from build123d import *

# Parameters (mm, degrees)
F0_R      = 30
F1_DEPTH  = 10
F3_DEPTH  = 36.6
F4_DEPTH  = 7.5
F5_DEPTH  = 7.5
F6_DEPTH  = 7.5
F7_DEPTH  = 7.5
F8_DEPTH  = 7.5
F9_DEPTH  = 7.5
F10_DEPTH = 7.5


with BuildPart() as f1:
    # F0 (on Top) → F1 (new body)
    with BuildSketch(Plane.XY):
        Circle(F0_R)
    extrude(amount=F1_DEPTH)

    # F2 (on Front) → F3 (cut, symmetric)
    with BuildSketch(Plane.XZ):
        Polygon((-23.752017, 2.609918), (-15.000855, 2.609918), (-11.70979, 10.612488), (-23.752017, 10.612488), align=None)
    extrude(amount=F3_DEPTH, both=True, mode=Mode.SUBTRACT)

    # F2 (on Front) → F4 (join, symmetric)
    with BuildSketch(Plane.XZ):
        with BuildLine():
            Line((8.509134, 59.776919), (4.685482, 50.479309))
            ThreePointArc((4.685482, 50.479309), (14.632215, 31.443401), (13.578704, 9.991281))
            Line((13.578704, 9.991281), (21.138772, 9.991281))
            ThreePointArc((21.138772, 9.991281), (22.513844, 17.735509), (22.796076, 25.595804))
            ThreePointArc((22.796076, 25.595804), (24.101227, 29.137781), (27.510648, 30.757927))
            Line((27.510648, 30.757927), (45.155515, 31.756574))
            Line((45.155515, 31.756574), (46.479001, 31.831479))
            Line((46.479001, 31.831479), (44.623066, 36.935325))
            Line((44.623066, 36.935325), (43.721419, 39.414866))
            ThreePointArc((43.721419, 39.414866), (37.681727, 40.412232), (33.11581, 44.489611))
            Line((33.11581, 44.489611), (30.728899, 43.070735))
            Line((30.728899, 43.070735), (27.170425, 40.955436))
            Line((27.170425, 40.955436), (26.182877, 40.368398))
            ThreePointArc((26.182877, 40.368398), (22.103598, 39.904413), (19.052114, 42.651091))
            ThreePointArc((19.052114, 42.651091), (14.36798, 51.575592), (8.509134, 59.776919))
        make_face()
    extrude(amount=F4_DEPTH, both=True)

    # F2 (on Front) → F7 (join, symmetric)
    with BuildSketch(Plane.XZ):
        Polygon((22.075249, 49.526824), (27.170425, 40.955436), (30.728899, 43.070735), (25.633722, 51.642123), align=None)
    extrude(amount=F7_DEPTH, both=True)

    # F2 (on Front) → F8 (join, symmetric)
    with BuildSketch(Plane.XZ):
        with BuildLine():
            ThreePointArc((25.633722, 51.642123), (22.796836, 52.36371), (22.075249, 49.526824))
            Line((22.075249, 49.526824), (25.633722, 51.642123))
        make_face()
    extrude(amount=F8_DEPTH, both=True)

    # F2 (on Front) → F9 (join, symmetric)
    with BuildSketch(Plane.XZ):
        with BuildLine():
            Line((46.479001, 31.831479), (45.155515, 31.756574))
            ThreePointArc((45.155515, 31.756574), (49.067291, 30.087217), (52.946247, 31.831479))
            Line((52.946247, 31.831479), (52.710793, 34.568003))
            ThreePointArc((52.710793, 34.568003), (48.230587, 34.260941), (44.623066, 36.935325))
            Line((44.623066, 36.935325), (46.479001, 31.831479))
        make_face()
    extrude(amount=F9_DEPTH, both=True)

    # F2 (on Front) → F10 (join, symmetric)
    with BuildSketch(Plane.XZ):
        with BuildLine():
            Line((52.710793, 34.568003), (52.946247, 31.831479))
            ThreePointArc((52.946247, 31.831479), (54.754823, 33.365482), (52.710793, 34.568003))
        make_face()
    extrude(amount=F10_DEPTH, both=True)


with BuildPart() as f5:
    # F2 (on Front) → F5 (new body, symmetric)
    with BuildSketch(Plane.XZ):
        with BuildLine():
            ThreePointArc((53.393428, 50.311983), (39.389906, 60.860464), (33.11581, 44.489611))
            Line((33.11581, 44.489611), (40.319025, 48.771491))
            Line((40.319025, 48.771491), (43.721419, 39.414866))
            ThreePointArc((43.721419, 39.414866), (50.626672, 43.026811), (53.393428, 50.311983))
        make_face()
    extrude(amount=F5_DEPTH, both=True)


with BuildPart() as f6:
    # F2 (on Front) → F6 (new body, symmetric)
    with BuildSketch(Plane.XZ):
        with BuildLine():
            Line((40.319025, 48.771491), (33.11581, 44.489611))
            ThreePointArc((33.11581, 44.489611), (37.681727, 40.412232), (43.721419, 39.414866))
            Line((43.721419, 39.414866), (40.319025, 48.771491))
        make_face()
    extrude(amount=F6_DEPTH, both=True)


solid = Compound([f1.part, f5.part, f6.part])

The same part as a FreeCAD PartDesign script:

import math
import FreeCAD as App
import Part
import Sketcher

V = App.Vector
Q = App.Units.Quantity


def add_polygon(sketch, points):
    """Adds a closed chain of lines whose ends are joined by coincident constraints."""
    first, n = sketch.GeometryCount, len(points)
    for a, b in zip(points, points[1:] + points[:1]):
        sketch.addGeometry(Part.LineSegment(App.Vector(*a, 0), App.Vector(*b, 0)), False)
    for i in range(n):
        sketch.addConstraint(Sketcher.Constraint("Coincident", first + i, 2, first + (i + 1) % n, 1))

doc = App.newDocument("Part")
params = doc.addObject("Spreadsheet::Sheet", "Params")
for row, (alias, value) in enumerate([
    ("sketch1_diameter", "60 mm"),
    ("pad1_length", "10 mm"),
    ("pocket1_length", "73.2 mm"),
    ("sketch3_radius", "5 mm"),
    ("pad2_length", "15 mm"),
    ("pad3_length", "15 mm"),
    ("pad4_length", "15 mm"),
    ("pad5_length", "15 mm"),
    ("pad6_length", "15 mm"),
    ("pad7_length", "15 mm"),
    ("pad8_length", "15 mm"),
], start=1):
    params.set(f"A{row}", alias)
    params.set(f"B{row}", "=" + value)
    params.setAlias(f"B{row}", alias)

body = doc.addObject("PartDesign::Body", "Body")

sketch1 = body.newObject("Sketcher::SketchObject", "Sketch")
sketch1.AttachmentSupport = (doc.getObject("XY_Plane"), [""])
sketch1.MapMode = "FlatFace"
sketch1.addGeometry(Part.Circle(V(0, 0, 0), V(0, 0, 1), 30), False)
sketch1.addConstraint(Sketcher.Constraint("Coincident", 0, 3, -1, 1))
sketch1.addConstraint(Sketcher.Constraint("Diameter", 0, Q("60 mm")))
sketch1.setExpression("Constraints[1]", "Params.sketch1_diameter")
pad1 = body.newObject("PartDesign::Pad", "Pad")
pad1.Profile = sketch1
pad1.setExpression("Length", "Params.pad1_length")

sketch2 = body.newObject("Sketcher::SketchObject", "Sketch001")
sketch2.AttachmentSupport = (doc.getObject("XZ_Plane"), [""])
sketch2.MapMode = "FlatFace"
add_polygon(sketch2, [(-24, 3), (-15, 3), (-12, 11), (-24, 11)])
sketch2.addConstraint(Sketcher.Constraint("Horizontal", 0))
sketch2.addConstraint(Sketcher.Constraint("Horizontal", 2))
sketch2.addConstraint(Sketcher.Constraint("Vertical", 3))
sketch2.addConstraint(Sketcher.Constraint("DistanceX", 0, 1, 0, 2, Q("8.751162 mm")))
sketch2.addConstraint(Sketcher.Constraint("DistanceY", 3, 2, 3, 1, Q("8.00257 mm")))
sketch2.addConstraint(Sketcher.Constraint("DistanceX", 2, 2, 2, 1, Q("12.042227 mm")))
sketch2.addConstraint(Sketcher.Constraint("DistanceY", -1, 1, 0, 2, Q("2.609918 mm")))
sketch2.addConstraint(Sketcher.Constraint("DistanceX", 1, 2, -1, 1, Q("11.70979 mm")))
pocket1 = body.newObject("PartDesign::Pocket", "Pocket")
pocket1.Profile = sketch2
pocket1.setExpression("Length", "Params.pocket1_length")
pocket1.Midplane = True

sketch3 = body.newObject("Sketcher::SketchObject", "Sketch002")
sketch3.AttachmentSupport = (doc.getObject("XZ_Plane"), [""])
sketch3.MapMode = "FlatFace"
sketch3.addGeometry(Part.LineSegment(V(8.5, 59.8, 0), V(4.7, 50.5, 0)), False)
sketch3.addGeometry(Part.ArcOfCircle(Part.Circle(V(-25.4, 22.7, 0), V(0, 0, 1), 41), math.radians(-18), math.radians(43)), False)
sketch3.addGeometry(Part.LineSegment(V(13.6, 10, 0), V(21.1, 10, 0)), False)
sketch3.addGeometry(Part.ArcOfCircle(Part.Circle(V(-33.5, 23.7, 0), V(0, 0, 1), 56.3), math.radians(-14.07), math.radians(1.95)), False)
sketch3.addGeometry(Part.ArcOfCircle(Part.Circle(V(27.8, 25.8, 0), V(0, 0, 1), 5), math.radians(93), math.radians(182)), False)
sketch3.addGeometry(Part.LineSegment(V(27.5, 30.8, 0), V(45.2, 31.8, 0)), False)
sketch3.addGeometry(Part.LineSegment(V(45.2, 31.8, 0), V(46.5, 31.8, 0)), False)
sketch3.addGeometry(Part.LineSegment(V(46.5, 31.8, 0), V(44.6, 36.9, 0)), False)
sketch3.addGeometry(Part.LineSegment(V(44.6, 36.9, 0), V(43.7, 39.4, 0)), False)
sketch3.addGeometry(Part.ArcOfCircle(Part.Circle(V(42.4, 50.3, 0), V(0, 0, 1), 11), math.radians(-148), math.radians(-83)), False)
sketch3.addGeometry(Part.LineSegment(V(33.1, 44.5, 0), V(30.7, 43.1, 0)), False)
sketch3.addGeometry(Part.LineSegment(V(30.7, 43.1, 0), V(27.2, 41, 0)), False)
sketch3.addGeometry(Part.LineSegment(V(27.2, 41, 0), V(26.2, 40.4, 0)), False)
sketch3.addGeometry(Part.ArcOfCircle(Part.Circle(V(23.6, 44.7, 0), V(0, 0, 1), 5), math.radians(-156), math.radians(-59)), False)
sketch3.addGeometry(Part.ArcOfCircle(Part.Circle(V(-48.3, 13, 0), V(0, 0, 1), 73.6), math.radians(23.77), math.radians(39.47)), False)
sketch3.addConstraint(Sketcher.Constraint("Coincident", 0, 2, 1, 2))
sketch3.addConstraint(Sketcher.Constraint("Coincident", 1, 1, 2, 1))
sketch3.addConstraint(Sketcher.Constraint("Coincident", 2, 2, 3, 1))
sketch3.addConstraint(Sketcher.Constraint("Tangent", 3, 2, 4, 2))
sketch3.addConstraint(Sketcher.Constraint("Tangent", 4, 1, 5, 1))
sketch3.addConstraint(Sketcher.Constraint("Coincident", 5, 2, 6, 1))
sketch3.addConstraint(Sketcher.Constraint("Coincident", 6, 2, 7, 1))
sketch3.addConstraint(Sketcher.Constraint("Coincident", 7, 2, 8, 1))
sketch3.addConstraint(Sketcher.Constraint("Coincident", 8, 2, 9, 2))
sketch3.addConstraint(Sketcher.Constraint("Coincident", 9, 1, 10, 1))
sketch3.addConstraint(Sketcher.Constraint("Coincident", 10, 2, 11, 1))
sketch3.addConstraint(Sketcher.Constraint("Coincident", 11, 2, 12, 1))
sketch3.addConstraint(Sketcher.Constraint("Tangent", 12, 2, 13, 2))
sketch3.addConstraint(Sketcher.Constraint("Tangent", 13, 1, 14, 1))
sketch3.addConstraint(Sketcher.Constraint("Coincident", 14, 2, 0, 1))
sketch3.addConstraint(Sketcher.Constraint("Horizontal", 2))
sketch3.addConstraint(Sketcher.Constraint("Equal", 4, 13))
sketch3.addConstraint(Sketcher.Constraint("Parallel", 5, 6))
sketch3.addConstraint(Sketcher.Constraint("Parallel", 7, 8))
sketch3.addConstraint(Sketcher.Constraint("Parallel", 10, 11))
sketch3.addConstraint(Sketcher.Constraint("Parallel", 11, 12))
sketch3.addConstraint(Sketcher.Constraint("Radius", 4, Q("5 mm")))
sketch3.addConstraint(Sketcher.Constraint("Radius", 3, Q("56.291778 mm")))
sketch3.addConstraint(Sketcher.Constraint("DistanceX", -1, 1, 6, 2, Q("46.479001 mm")))
sketch3.addConstraint(Sketcher.Constraint("Radius", 1, Q("40.959303 mm")))
sketch3.addConstraint(Sketcher.Constraint("Radius", 9, Q("10.974704 mm")))
sketch3.addConstraint(Sketcher.Constraint("Radius", 14, Q("73.642822 mm")))
sketch3.addConstraint(Sketcher.Constraint("DistanceX", -1, 1, 10, 2, Q("30.728899 mm")))
sketch3.addConstraint(Sketcher.Constraint("DistanceX", 0, 2, 4, 3, Q("23.107699 mm")))
sketch3.addConstraint(Sketcher.Constraint("DistanceY", 2, 2, 9, 3, Q("40.3207 mm")))
sketch3.addConstraint(Sketcher.Constraint("DistanceY", 6, 2, 9, 3, Q("18.480502 mm")))
sketch3.addConstraint(Sketcher.Constraint("DistanceX", 9, 3, 8, 2, Q("1.302698 mm")))
sketch3.addConstraint(Sketcher.Constraint("DistanceY", 11, 2, 10, 2, Q("2.115299 mm")))
sketch3.addConstraint(Sketcher.Constraint("Distance", 10, Q("2.776788 mm")))
sketch3.addConstraint(Sketcher.Constraint("DistanceX", 2, 1, 2, 2, Q("7.560068 mm")))
sketch3.addConstraint(Sketcher.Constraint("DistanceX", 1, 3, -1, 1, Q("25.373392 mm")))
sketch3.addConstraint(Sketcher.Constraint("DistanceX", -1, 1, 4, 3, Q("27.793181 mm")))
sketch3.addConstraint(Sketcher.Constraint("DistanceX", -1, 1, 9, 3, Q("42.418721 mm")))
sketch3.addConstraint(Sketcher.Constraint("DistanceY", -1, 1, 9, 3, Q("50.311981 mm")))
sketch3.addConstraint(Sketcher.Constraint("DistanceX", -1, 1, 13, 3, Q("23.627991 mm")))
sketch3.addConstraint(Sketcher.Constraint("DistanceY", -1, 1, 13, 3, Q("44.666368 mm")))
sketch3.addConstraint(Sketcher.Constraint("DistanceX", 14, 3, -1, 1, Q("48.343989 mm")))
sketch3.addConstraint(Sketcher.Constraint("DistanceY", -1, 1, 0, 2, Q("50.479309 mm")))
sketch3.addConstraint(Sketcher.Constraint("DistanceY", -1, 1, 14, 2, Q("59.776919 mm")))
sketch3.addConstraint(Sketcher.Constraint("DistanceY", 1, 3, 3, 3, Q("1.024491 mm")))
sketch3.addConstraint(Sketcher.Constraint("DistanceX", 3, 2, 5, 2, Q("22.359439 mm")))
sketch3.addConstraint(Sketcher.Constraint("DistanceX", 7, 2, 5, 2, Q("0.532449 mm")))
sketch3.setExpression("Constraints[21]", "Params.sketch3_radius")
pad2 = body.newObject("PartDesign::Pad", "Pad001")
pad2.Profile = sketch3
pad2.setExpression("Length", "Params.pad2_length")
pad2.Midplane = True

sketch4 = body.newObject("Sketcher::SketchObject", "Sketch003")
sketch4.AttachmentSupport = (doc.getObject("XZ_Plane"), [""])
sketch4.MapMode = "FlatFace"
add_polygon(sketch4, [(22.1, 49.5), (27.2, 41), (30.7, 43.1), (25.6, 51.6)])
sketch4.addConstraint(Sketcher.Constraint("Perpendicular", 0, 1))
sketch4.addConstraint(Sketcher.Constraint("Perpendicular", 1, 2))
sketch4.addConstraint(Sketcher.Constraint("Perpendicular", 2, 3))
sketch4.addConstraint(Sketcher.Constraint("DistanceX", -1, 1, 1, 2, Q("30.728899 mm")))
sketch4.addConstraint(Sketcher.Constraint("DistanceY", 0, 2, 1, 2, Q("2.115299 mm")))
sketch4.addConstraint(Sketcher.Constraint("DistanceX", -1, 1, 2, 2, Q("25.633722 mm")))
sketch4.addConstraint(Sketcher.Constraint("DistanceX", -1, 1, 3, 2, Q("22.075249 mm")))
sketch4.addConstraint(Sketcher.Constraint("DistanceY", -1, 1, 0, 2, Q("40.955436 mm")))
pad3 = body.newObject("PartDesign::Pad", "Pad002")
pad3.Profile = sketch4
pad3.setExpression("Length", "Params.pad3_length")
pad3.Midplane = True

sketch5 = body.newObject("Sketcher::SketchObject", "Sketch004")
sketch5.AttachmentSupport = (doc.getObject("XZ_Plane"), [""])
sketch5.MapMode = "FlatFace"
sketch5.addGeometry(Part.ArcOfCircle(Part.Circle(V(23.9, 50.6, 0), V(0, 0, 1), 2.1), math.radians(31), math.radians(211)), False)
sketch5.addGeometry(Part.LineSegment(V(22.1, 49.5, 0), V(25.6, 51.6, 0)), False)
sketch5.addConstraint(Sketcher.Constraint("Coincident", 0, 1, 1, 2))
sketch5.addConstraint(Sketcher.Constraint("Coincident", 1, 1, 0, 2))
sketch5.addConstraint(Sketcher.Constraint("Radius", 0, Q("2.069856 mm")))
sketch5.addConstraint(Sketcher.Constraint("DistanceY", 1, 1, 0, 1, Q("2.115299 mm")))
sketch5.addConstraint(Sketcher.Constraint("DistanceX", -1, 1, 0, 1, Q("25.633722 mm")))
sketch5.addConstraint(Sketcher.Constraint("DistanceY", 0, 3, 0, 1, Q("1.057649 mm")))
sketch5.addConstraint(Sketcher.Constraint("DistanceY", -1, 1, 0, 3, Q("50.584474 mm")))
pad4 = body.newObject("PartDesign::Pad", "Pad003")
pad4.Profile = sketch5
pad4.setExpression("Length", "Params.pad4_length")
pad4.Midplane = True

sketch6 = body.newObject("Sketcher::SketchObject", "Sketch005")
sketch6.AttachmentSupport = (doc.getObject("XZ_Plane"), [""])
sketch6.MapMode = "FlatFace"
sketch6.addGeometry(Part.LineSegment(V(46.5, 31.8, 0), V(45.2, 31.8, 0)), False)
sketch6.addGeometry(Part.ArcOfCircle(Part.Circle(V(49, 35.4, 0), V(0, 0, 1), 5.3), math.radians(-137), math.radians(-42)), False)
sketch6.addGeometry(Part.LineSegment(V(52.9, 31.8, 0), V(52.7, 34.6, 0)), False)
sketch6.addGeometry(Part.ArcOfCircle(Part.Circle(V(50.1, 40.5, 0), V(0, 0, 1), 6.5), math.radians(-147), math.radians(-66)), False)
sketch6.addGeometry(Part.LineSegment(V(44.6, 36.9, 0), V(46.5, 31.8, 0)), False)
sketch6.addConstraint(Sketcher.Constraint("Coincident", 0, 2, 1, 1))
sketch6.addConstraint(Sketcher.Constraint("Coincident", 1, 2, 2, 1))
sketch6.addConstraint(Sketcher.Constraint("Coincident", 2, 2, 3, 2))
sketch6.addConstraint(Sketcher.Constraint("Coincident", 3, 1, 4, 1))
sketch6.addConstraint(Sketcher.Constraint("Coincident", 4, 2, 0, 1))
sketch6.addConstraint(Sketcher.Constraint("Horizontal", 1, 2, 4, 2))
sketch6.addConstraint(Sketcher.Constraint("Radius", 1, Q("5.298749 mm")))
sketch6.addConstraint(Sketcher.Constraint("DistanceX", -1, 1, 4, 2, Q("46.479001 mm")))
sketch6.addConstraint(Sketcher.Constraint("Radius", 3, Q("6.491636 mm")))
sketch6.addConstraint(Sketcher.Constraint("DistanceX", 1, 3, 1, 2, Q("3.929899 mm")))
sketch6.addConstraint(Sketcher.Constraint("DistanceX", -1, 1, 1, 3, Q("49.016348 mm")))
sketch6.addConstraint(Sketcher.Constraint("DistanceY", -1, 1, 1, 3, Q("35.385721 mm")))
sketch6.addConstraint(Sketcher.Constraint("DistanceX", -1, 1, 3, 3, Q("50.054209 mm")))
sketch6.addConstraint(Sketcher.Constraint("DistanceY", -1, 1, 3, 3, Q("40.491169 mm")))
sketch6.addConstraint(Sketcher.Constraint("DistanceY", 2, 2, 1, 3, Q("0.817718 mm")))
sketch6.addConstraint(Sketcher.Constraint("DistanceX", 0, 2, 2, 2, Q("7.555278 mm")))
sketch6.addConstraint(Sketcher.Constraint("DistanceX", 3, 1, 0, 2, Q("0.532449 mm")))
pad5 = body.newObject("PartDesign::Pad", "Pad004")
pad5.Profile = sketch6
pad5.setExpression("Length", "Params.pad5_length")
pad5.Midplane = True

sketch7 = body.newObject("Sketcher::SketchObject", "Sketch006")
sketch7.AttachmentSupport = (doc.getObject("XZ_Plane"), [""])
sketch7.MapMode = "FlatFace"
sketch7.addGeometry(Part.LineSegment(V(52.7, 34.6, 0), V(52.9, 31.8, 0)), False)
sketch7.addGeometry(Part.ArcOfCircle(Part.Circle(V(53.3, 33.2, 0), V(0, 0, 1), 1.5), math.radians(-104), math.radians(114)), False)
sketch7.addConstraint(Sketcher.Constraint("Coincident", 0, 1, 1, 2))
sketch7.addConstraint(Sketcher.Constraint("Coincident", 1, 1, 0, 2))
sketch7.addConstraint(Sketcher.Constraint("Radius", 1, Q("1.454447 mm")))
sketch7.addConstraint(Sketcher.Constraint("DistanceY", -1, 1, 1, 3, Q("33.240801 mm")))
sketch7.addConstraint(Sketcher.Constraint("DistanceX", -1, 1, 1, 3, Q("53.30573 mm")))
sketch7.addConstraint(Sketcher.Constraint("DistanceY", -1, 1, 1, 1, Q("31.831479 mm")))
sketch7.addConstraint(Sketcher.Constraint("Distance", 0, Q("2.746635 mm")))
pad6 = body.newObject("PartDesign::Pad", "Pad005")
pad6.Profile = sketch7
pad6.setExpression("Length", "Params.pad6_length")
pad6.Midplane = True
body2 = doc.addObject("PartDesign::Body", "Body001")

sketch8 = body2.newObject("Sketcher::SketchObject", "Sketch007")
sketch8.AttachmentSupport = (doc.getObject("XZ_Plane001"), [""])
sketch8.MapMode = "FlatFace"
sketch8.addGeometry(Part.ArcOfCircle(Part.Circle(V(42, 50, 0), V(0, 0, 1), 11), math.radians(0), math.radians(212)), False)
sketch8.addGeometry(Part.LineSegment(V(33, 44, 0), V(40, 49, 0)), False)
sketch8.addGeometry(Part.LineSegment(V(40, 49, 0), V(44, 39, 0)), False)
sketch8.addGeometry(Part.ArcOfCircle(Part.Circle(V(42, 50, 0), V(0, 0, 1), 11), math.radians(-83), math.radians(0)), False)
sketch8.addConstraint(Sketcher.Constraint("Coincident", 0, 2, 1, 1))
sketch8.addConstraint(Sketcher.Constraint("Coincident", 1, 2, 2, 1))
sketch8.addConstraint(Sketcher.Constraint("Coincident", 2, 2, 3, 1))
sketch8.addConstraint(Sketcher.Constraint("Tangent", 3, 2, 0, 1))
sketch8.addConstraint(Sketcher.Constraint("Equal", 0, 3))
sketch8.addConstraint(Sketcher.Constraint("Horizontal", 0, 3, 3, 2))
sketch8.addConstraint(Sketcher.Constraint("Radius", 0, Q("10.974706 mm")))
sketch8.addConstraint(Sketcher.Constraint("Distance", 2, Q("9.956039 mm")))
sketch8.addConstraint(Sketcher.Constraint("DistanceX", -1, 1, 0, 3, Q("42.418722 mm")))
sketch8.addConstraint(Sketcher.Constraint("DistanceX", -1, 1, 0, 2, Q("33.11581 mm")))
sketch8.addConstraint(Sketcher.Constraint("DistanceY", -1, 1, 0, 2, Q("44.489611 mm")))
sketch8.addConstraint(Sketcher.Constraint("DistanceY", -1, 1, 1, 2, Q("48.771491 mm")))
sketch8.addConstraint(Sketcher.Constraint("DistanceX", -1, 1, 2, 2, Q("43.721419 mm")))
pad7 = body2.newObject("PartDesign::Pad", "Pad006")
pad7.Profile = sketch8
pad7.setExpression("Length", "Params.pad7_length")
pad7.Midplane = True
body3 = doc.addObject("PartDesign::Body", "Body002")

sketch9 = body3.newObject("Sketcher::SketchObject", "Sketch008")
sketch9.AttachmentSupport = (doc.getObject("XZ_Plane002"), [""])
sketch9.MapMode = "FlatFace"
sketch9.addGeometry(Part.LineSegment(V(40, 49, 0), V(33, 44, 0)), False)
sketch9.addGeometry(Part.ArcOfCircle(Part.Circle(V(42, 50, 0), V(0, 0, 1), 11), math.radians(-148), math.radians(-83)), False)
sketch9.addGeometry(Part.LineSegment(V(44, 39, 0), V(40, 49, 0)), False)
sketch9.addConstraint(Sketcher.Constraint("Coincident", 0, 2, 1, 1))
sketch9.addConstraint(Sketcher.Constraint("Coincident", 1, 2, 2, 1))
sketch9.addConstraint(Sketcher.Constraint("Coincident", 2, 2, 0, 1))
sketch9.addConstraint(Sketcher.Constraint("Radius", 1, Q("10.974704 mm")))
sketch9.addConstraint(Sketcher.Constraint("DistanceX", 1, 3, 1, 2, Q("1.302698 mm")))
sketch9.addConstraint(Sketcher.Constraint("Distance", 2, Q("9.956039 mm")))
sketch9.addConstraint(Sketcher.Constraint("DistanceX", -1, 1, 1, 3, Q("42.418721 mm")))
sketch9.addConstraint(Sketcher.Constraint("DistanceY", -1, 1, 1, 3, Q("50.311981 mm")))
sketch9.addConstraint(Sketcher.Constraint("DistanceX", -1, 1, 0, 2, Q("33.11581 mm")))
sketch9.addConstraint(Sketcher.Constraint("DistanceY", -1, 1, 2, 2, Q("48.771491 mm")))
pad8 = body3.newObject("PartDesign::Pad", "Pad007")
pad8.Profile = sketch9
pad8.setExpression("Length", "Params.pad8_length")
pad8.Midplane = True

doc.recompute()
